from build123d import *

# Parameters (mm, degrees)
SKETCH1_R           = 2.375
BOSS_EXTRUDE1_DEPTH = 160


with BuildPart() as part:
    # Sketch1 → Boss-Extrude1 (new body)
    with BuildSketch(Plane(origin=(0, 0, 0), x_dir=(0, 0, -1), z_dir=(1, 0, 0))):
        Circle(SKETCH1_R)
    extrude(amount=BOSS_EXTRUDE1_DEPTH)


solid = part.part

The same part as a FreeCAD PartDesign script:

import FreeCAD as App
import Part
import Sketcher
Q = App.Units.Quantity

doc = App.newDocument("Part")
body = doc.addObject("PartDesign::Body", "Body")

# Sketch on YZ plane
sketch1 = body.newObject("Sketcher::SketchObject", "Sketch")
sketch1.AttachmentSupport = (doc.getObject("YZ_Plane"), [""])
sketch1.MapMode = "FlatFace"
sketch1.addGeometry(Part.Circle(App.Vector(0, 0, 0), App.Vector(0, 0, 1), 2.4), False)
sketch1.addConstraint(Sketcher.Constraint("Coincident", 0, 3, -1, 1))
sketch1.addConstraint(Sketcher.Constraint("Diameter", 0, Q("4.75 mm")))
pad1 = body.newObject("PartDesign::Pad", "Pad")
pad1.Profile = sketch1
pad1.Length = 160

doc.recompute()
